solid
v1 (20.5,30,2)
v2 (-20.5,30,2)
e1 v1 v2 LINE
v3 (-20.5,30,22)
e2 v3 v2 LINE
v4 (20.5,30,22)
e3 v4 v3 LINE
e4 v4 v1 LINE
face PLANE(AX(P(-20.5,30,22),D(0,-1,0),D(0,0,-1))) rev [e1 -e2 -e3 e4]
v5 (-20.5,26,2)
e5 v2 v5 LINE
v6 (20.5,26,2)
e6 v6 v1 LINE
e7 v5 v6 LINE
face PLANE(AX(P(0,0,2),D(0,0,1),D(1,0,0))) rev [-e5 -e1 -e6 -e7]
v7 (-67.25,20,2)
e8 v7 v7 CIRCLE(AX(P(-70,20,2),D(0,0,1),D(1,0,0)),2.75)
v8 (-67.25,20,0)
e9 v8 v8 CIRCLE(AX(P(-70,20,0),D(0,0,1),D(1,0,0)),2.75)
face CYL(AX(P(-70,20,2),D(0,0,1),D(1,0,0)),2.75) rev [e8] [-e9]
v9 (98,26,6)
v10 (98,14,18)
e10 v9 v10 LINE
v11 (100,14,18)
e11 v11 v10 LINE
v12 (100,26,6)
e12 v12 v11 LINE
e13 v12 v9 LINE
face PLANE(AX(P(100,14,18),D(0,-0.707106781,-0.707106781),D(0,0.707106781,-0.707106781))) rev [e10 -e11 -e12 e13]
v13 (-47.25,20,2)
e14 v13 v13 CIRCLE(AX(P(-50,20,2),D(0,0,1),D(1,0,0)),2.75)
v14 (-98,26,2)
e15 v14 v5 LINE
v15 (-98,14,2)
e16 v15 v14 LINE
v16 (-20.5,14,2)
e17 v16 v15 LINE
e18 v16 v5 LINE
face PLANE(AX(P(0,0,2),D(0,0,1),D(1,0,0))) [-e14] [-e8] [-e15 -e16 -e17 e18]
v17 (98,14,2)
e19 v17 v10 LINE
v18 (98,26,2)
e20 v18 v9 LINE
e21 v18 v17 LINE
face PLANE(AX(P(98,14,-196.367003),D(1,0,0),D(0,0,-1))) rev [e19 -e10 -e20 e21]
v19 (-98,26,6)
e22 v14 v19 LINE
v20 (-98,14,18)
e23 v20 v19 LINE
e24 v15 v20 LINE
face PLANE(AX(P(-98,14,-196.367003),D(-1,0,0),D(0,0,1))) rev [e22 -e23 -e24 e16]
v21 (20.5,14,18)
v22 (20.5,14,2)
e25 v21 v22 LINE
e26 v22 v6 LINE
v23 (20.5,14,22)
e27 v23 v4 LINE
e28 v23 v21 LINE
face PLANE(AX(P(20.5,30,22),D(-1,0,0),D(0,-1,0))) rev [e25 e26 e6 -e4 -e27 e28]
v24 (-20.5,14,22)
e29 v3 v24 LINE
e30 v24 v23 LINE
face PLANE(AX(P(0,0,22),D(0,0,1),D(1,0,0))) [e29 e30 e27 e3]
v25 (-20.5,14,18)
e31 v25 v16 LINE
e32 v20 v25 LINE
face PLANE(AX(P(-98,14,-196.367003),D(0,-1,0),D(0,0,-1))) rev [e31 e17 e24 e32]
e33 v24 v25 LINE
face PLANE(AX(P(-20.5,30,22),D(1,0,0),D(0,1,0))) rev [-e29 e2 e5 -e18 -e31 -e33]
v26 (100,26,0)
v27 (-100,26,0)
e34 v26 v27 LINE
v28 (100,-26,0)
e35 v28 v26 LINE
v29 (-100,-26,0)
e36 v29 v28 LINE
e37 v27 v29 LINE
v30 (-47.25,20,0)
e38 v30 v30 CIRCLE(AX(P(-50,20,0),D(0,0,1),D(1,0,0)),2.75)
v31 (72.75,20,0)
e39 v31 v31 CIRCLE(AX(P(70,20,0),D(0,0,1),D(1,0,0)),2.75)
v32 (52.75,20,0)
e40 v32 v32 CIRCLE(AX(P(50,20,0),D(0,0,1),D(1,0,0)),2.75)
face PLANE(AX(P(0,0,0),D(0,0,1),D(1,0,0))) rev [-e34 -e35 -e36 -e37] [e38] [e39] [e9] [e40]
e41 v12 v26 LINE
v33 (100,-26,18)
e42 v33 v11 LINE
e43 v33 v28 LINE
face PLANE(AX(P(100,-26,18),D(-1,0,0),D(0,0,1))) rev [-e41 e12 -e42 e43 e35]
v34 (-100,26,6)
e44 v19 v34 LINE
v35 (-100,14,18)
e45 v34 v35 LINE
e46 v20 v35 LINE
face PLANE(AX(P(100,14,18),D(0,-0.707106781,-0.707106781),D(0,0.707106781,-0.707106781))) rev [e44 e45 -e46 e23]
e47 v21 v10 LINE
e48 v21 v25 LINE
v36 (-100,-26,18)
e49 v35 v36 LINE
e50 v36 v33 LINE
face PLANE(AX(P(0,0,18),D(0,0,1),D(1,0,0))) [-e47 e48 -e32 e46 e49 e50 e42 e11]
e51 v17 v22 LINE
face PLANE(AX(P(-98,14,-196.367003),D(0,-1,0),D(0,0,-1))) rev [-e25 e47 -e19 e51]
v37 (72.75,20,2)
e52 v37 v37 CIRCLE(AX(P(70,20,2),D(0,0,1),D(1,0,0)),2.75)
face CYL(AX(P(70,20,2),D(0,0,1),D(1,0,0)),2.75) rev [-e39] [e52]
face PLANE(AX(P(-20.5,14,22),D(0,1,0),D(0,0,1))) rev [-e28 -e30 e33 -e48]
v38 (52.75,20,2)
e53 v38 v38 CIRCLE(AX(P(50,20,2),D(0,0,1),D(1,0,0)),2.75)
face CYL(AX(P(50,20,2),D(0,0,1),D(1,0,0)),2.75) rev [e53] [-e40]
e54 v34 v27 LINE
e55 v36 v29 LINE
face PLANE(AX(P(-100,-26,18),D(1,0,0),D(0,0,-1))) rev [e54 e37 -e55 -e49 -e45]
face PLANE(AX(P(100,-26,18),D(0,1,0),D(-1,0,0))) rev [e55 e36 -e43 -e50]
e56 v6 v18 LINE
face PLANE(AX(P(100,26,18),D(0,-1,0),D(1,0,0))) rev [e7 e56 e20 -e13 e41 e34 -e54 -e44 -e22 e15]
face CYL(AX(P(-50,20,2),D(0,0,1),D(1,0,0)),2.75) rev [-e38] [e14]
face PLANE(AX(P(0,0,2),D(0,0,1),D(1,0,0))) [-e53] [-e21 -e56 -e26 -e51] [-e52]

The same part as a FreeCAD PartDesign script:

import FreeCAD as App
import Part
import Sketcher

V = App.Vector

doc = App.newDocument("Part")
body = doc.addObject("PartDesign::Body", "Body")

# Sketch on XY plane
sketch1 = body.newObject("Sketcher::SketchObject", "Sketch")
sketch1.AttachmentSupport = (doc.getObject("XY_Plane"), [""])
sketch1.MapMode = "FlatFace"
sketch1.addGeometry(Part.LineSegment(V(-100, 26, 0), V(-100, -26, 0)), False)
sketch1.addGeometry(Part.LineSegment(V(-100, -26, 0), V(100, -26, 0)), False)
sketch1.addGeometry(Part.LineSegment(V(100, -26, 0), V(100, 26, 0)), False)
sketch1.addGeometry(Part.LineSegment(V(100, 26, 0), V(-100, 26, 0)), False)
sketch1.addConstraint(Sketcher.Constraint("Coincident", 0, 2, 1, 1))
sketch1.addConstraint(Sketcher.Constraint("Coincident", 1, 2, 2, 1))
sketch1.addConstraint(Sketcher.Constraint("Coincident", 2, 2, 3, 1))
sketch1.addConstraint(Sketcher.Constraint("Coincident", 3, 2, 0, 1))
sketch1.addConstraint(Sketcher.Constraint("Vertical", 0))
sketch1.addConstraint(Sketcher.Constraint("Horizontal", 1))
sketch1.addConstraint(Sketcher.Constraint("Vertical", 2))
sketch1.addConstraint(Sketcher.Constraint("Horizontal", 3))
sketch1.addConstraint(Sketcher.Constraint("Symmetric", 0, 2, 2, 2, -1, 1))
sketch1.addConstraint(Sketcher.Constraint("DistanceX", 1, 1, 1, 2, 200.0))
sketch1.addConstraint(Sketcher.Constraint("DistanceY", 0, 2, 0, 1, 52.0))
pad1 = body.newObject("PartDesign::Pad", "Pad")
pad1.Profile = sketch1
pad1.Length = 18

# Sketch on YZ plane
sketch2 = body.newObject("Sketcher::SketchObject", "Sketch001")
sketch2.AttachmentSupport = (doc.getObject("YZ_Plane"), [""])
sketch2.MapMode = "FlatFace"
sketch2.AttachmentOffset = App.Placement(V(0, 0, -100), App.Rotation())
sketch2.addGeometry(Part.LineSegment(V(26, 6, 0), V(14, 18, 0)), False)
sketch2.addGeometry(Part.LineSegment(V(14, 18, 0), V(26, 18, 0)), False)
sketch2.addGeometry(Part.LineSegment(V(26, 18, 0), V(26, 6, 0)), False)
sketch2.addConstraint(Sketcher.Constraint("Coincident", 0, 2, 1, 1))
sketch2.addConstraint(Sketcher.Constraint("Coincident", 1, 2, 2, 1))
sketch2.addConstraint(Sketcher.Constraint("Coincident", 2, 2, 0, 1))
sketch2.addConstraint(Sketcher.Constraint("Horizontal", 1))
sketch2.addConstraint(Sketcher.Constraint("Vertical", 2))
sketch2.addConstraint(Sketcher.Constraint("Equal", 1, 2))
sketch2.addConstraint(Sketcher.Constraint("DistanceX", 1, 1, 1, 2, 12.0))
sketch2.addConstraint(Sketcher.Constraint("DistanceX", -1, 1, 0, 2, 14.0))
sketch2.addConstraint(Sketcher.Constraint("DistanceY", -1, 1, 0, 2, 18.0))
pocket1 = body.newObject("PartDesign::Pocket", "Pocket")
pocket1.Profile = sketch2
pocket1.Type = "ThroughAll"
pocket1.Reversed = True

# Sketch on XY plane
sketch3 = body.newObject("Sketcher::SketchObject", "Sketch002")
sketch3.AttachmentSupport = (doc.getObject("XY_Plane"), [""])
sketch3.MapMode = "FlatFace"
sketch3.AttachmentOffset = App.Placement(V(0, 0, 18), App.Rotation())
sketch3.addGeometry(Part.LineSegment(V(-98, 26, 0), V(-98, 14, 0)), False)
sketch3.addGeometry(Part.LineSegment(V(-98, 14, 0), V(98, 14, 0)), False)
sketch3.addGeometry(Part.LineSegment(V(98, 14, 0), V(98, 26, 0)), False)
sketch3.addGeometry(Part.LineSegment(V(98, 26, 0), V(-98, 26, 0)), False)
sketch3.addConstraint(Sketcher.Constraint("Coincident", 0, 2, 1, 1))
sketch3.addConstraint(Sketcher.Constraint("Coincident", 1, 2, 2, 1))
sketch3.addConstraint(Sketcher.Constraint("Coincident", 2, 2, 3, 1))
sketch3.addConstraint(Sketcher.Constraint("Coincident", 3, 2, 0, 1))
sketch3.addConstraint(Sketcher.Constraint("Vertical", 0))
sketch3.addConstraint(Sketcher.Constraint("Horizontal", 1))
sketch3.addConstraint(Sketcher.Constraint("Vertical", 2))
sketch3.addConstraint(Sketcher.Constraint("Horizontal", 3))
sketch3.addConstraint(Sketcher.Constraint("DistanceX", 1, 1, 1, 2, 196.0))
sketch3.addConstraint(Sketcher.Constraint("DistanceY", 0, 2, 0, 1, 12.0))
sketch3.addConstraint(Sketcher.Constraint("DistanceX", 0, 2, -1, 1, 98.0))
sketch3.addConstraint(Sketcher.Constraint("DistanceY", -1, 1, 0, 2, 14.0))
pocket2 = body.newObject("PartDesign::Pocket", "Pocket001")
pocket2.Profile = sketch3
pocket2.Length = 16

# Sketch on XY plane
sketch4 = body.newObject("Sketcher::SketchObject", "Sketch003")
sketch4.AttachmentSupport = (doc.getObject("XY_Plane"), [""])
sketch4.MapMode = "FlatFace"
sketch4.AttachmentOffset = App.Placement(V(0, 0, 2), App.Rotation())
sketch4.addGeometry(Part.Circle(V(-50, 20, 0), V(0, 0, 1), 2.8), False)
sketch4.addGeometry(Part.Circle(V(50, 20, 0), V(0, 0, 1), 2.8), False)
sketch4.addGeometry(Part.Circle(V(70, 20, 0), V(0, 0, 1), 2.8), False)
sketch4.addGeometry(Part.Circle(V(-70, 20, 0), V(0, 0, 1), 2.8), False)
sketch4.addConstraint(Sketcher.Constraint("Equal", 0, 1))
sketch4.addConstraint(Sketcher.Constraint("Equal", 1, 2))
sketch4.addConstraint(Sketcher.Constraint("Equal", 2, 3))
sketch4.addConstraint(Sketcher.Constraint("Symmetric", 0, 3, 1, 3, -2))
sketch4.addConstraint(Sketcher.Constraint("Symmetric", 2, 3, 3, 3, -2))
sketch4.addConstraint(Sketcher.Constraint("Horizontal", 1, 3, 2, 3))
sketch4.addConstraint(Sketcher.Constraint("Diameter", 0, 5.5))
sketch4.addConstraint(Sketcher.Constraint("DistanceX", 0, 3, -1, 1, 50.0))
sketch4.addConstraint(Sketcher.Constraint("DistanceY", -1, 1, 0, 3, 20.0))
sketch4.addConstraint(Sketcher.Constraint("DistanceX", -1, 1, 2, 3, 70.0))
doc.recompute()
hole = body.newObject("PartDesign::Hole", "Hole")
hole.Profile = sketch4
hole.ThreadType = "None"
hole.Diameter = 5.5
hole.DepthType = "ThroughAll"

# Sketch on XY plane
sketch5 = body.newObject("Sketcher::SketchObject", "Sketch004")
sketch5.AttachmentSupport = (doc.getObject("XY_Plane"), [""])
sketch5.MapMode = "FlatFace"
sketch5.AttachmentOffset = App.Placement(V(0, 0, 2), App.Rotation())
sketch5.addGeometry(Part.LineSegment(V(-20, 30, 0), V(-20, 14, 0)), False)
sketch5.addGeometry(Part.LineSegment(V(-20, 14, 0), V(20, 14, 0)), False)
sketch5.addGeometry(Part.LineSegment(V(20, 14, 0), V(20, 30, 0)), False)
sketch5.addGeometry(Part.LineSegment(V(20, 30, 0), V(-20, 30, 0)), False)
sketch5.addConstraint(Sketcher.Constraint("Coincident", 0, 2, 1, 1))
sketch5.addConstraint(Sketcher.Constraint("Coincident", 1, 2, 2, 1))
sketch5.addConstraint(Sketcher.Constraint("Coincident", 2, 2, 3, 1))
sketch5.addConstraint(Sketcher.Constraint("Coincident", 3, 2, 0, 1))
sketch5.addConstraint(Sketcher.Constraint("Vertical", 0))
sketch5.addConstraint(Sketcher.Constraint("Horizontal", 1))
sketch5.addConstraint(Sketcher.Constraint("Vertical", 2))
sketch5.addConstraint(Sketcher.Constraint("Horizontal", 3))
sketch5.addConstraint(Sketcher.Constraint("DistanceX", 1, 1, 1, 2, 41.0))
sketch5.addConstraint(Sketcher.Constraint("DistanceY", 0, 2, 0, 1, 16.0))
sketch5.addConstraint(Sketcher.Constraint("DistanceY", -1, 1, 0, 2, 14.0))
sketch5.addConstraint(Sketcher.Constraint("DistanceX", 0, 2, -1, 1, 20.5))
pad2 = body.newObject("PartDesign::Pad", "Pad001")
pad2.Profile = sketch5
pad2.Length = 20

doc.recompute()
